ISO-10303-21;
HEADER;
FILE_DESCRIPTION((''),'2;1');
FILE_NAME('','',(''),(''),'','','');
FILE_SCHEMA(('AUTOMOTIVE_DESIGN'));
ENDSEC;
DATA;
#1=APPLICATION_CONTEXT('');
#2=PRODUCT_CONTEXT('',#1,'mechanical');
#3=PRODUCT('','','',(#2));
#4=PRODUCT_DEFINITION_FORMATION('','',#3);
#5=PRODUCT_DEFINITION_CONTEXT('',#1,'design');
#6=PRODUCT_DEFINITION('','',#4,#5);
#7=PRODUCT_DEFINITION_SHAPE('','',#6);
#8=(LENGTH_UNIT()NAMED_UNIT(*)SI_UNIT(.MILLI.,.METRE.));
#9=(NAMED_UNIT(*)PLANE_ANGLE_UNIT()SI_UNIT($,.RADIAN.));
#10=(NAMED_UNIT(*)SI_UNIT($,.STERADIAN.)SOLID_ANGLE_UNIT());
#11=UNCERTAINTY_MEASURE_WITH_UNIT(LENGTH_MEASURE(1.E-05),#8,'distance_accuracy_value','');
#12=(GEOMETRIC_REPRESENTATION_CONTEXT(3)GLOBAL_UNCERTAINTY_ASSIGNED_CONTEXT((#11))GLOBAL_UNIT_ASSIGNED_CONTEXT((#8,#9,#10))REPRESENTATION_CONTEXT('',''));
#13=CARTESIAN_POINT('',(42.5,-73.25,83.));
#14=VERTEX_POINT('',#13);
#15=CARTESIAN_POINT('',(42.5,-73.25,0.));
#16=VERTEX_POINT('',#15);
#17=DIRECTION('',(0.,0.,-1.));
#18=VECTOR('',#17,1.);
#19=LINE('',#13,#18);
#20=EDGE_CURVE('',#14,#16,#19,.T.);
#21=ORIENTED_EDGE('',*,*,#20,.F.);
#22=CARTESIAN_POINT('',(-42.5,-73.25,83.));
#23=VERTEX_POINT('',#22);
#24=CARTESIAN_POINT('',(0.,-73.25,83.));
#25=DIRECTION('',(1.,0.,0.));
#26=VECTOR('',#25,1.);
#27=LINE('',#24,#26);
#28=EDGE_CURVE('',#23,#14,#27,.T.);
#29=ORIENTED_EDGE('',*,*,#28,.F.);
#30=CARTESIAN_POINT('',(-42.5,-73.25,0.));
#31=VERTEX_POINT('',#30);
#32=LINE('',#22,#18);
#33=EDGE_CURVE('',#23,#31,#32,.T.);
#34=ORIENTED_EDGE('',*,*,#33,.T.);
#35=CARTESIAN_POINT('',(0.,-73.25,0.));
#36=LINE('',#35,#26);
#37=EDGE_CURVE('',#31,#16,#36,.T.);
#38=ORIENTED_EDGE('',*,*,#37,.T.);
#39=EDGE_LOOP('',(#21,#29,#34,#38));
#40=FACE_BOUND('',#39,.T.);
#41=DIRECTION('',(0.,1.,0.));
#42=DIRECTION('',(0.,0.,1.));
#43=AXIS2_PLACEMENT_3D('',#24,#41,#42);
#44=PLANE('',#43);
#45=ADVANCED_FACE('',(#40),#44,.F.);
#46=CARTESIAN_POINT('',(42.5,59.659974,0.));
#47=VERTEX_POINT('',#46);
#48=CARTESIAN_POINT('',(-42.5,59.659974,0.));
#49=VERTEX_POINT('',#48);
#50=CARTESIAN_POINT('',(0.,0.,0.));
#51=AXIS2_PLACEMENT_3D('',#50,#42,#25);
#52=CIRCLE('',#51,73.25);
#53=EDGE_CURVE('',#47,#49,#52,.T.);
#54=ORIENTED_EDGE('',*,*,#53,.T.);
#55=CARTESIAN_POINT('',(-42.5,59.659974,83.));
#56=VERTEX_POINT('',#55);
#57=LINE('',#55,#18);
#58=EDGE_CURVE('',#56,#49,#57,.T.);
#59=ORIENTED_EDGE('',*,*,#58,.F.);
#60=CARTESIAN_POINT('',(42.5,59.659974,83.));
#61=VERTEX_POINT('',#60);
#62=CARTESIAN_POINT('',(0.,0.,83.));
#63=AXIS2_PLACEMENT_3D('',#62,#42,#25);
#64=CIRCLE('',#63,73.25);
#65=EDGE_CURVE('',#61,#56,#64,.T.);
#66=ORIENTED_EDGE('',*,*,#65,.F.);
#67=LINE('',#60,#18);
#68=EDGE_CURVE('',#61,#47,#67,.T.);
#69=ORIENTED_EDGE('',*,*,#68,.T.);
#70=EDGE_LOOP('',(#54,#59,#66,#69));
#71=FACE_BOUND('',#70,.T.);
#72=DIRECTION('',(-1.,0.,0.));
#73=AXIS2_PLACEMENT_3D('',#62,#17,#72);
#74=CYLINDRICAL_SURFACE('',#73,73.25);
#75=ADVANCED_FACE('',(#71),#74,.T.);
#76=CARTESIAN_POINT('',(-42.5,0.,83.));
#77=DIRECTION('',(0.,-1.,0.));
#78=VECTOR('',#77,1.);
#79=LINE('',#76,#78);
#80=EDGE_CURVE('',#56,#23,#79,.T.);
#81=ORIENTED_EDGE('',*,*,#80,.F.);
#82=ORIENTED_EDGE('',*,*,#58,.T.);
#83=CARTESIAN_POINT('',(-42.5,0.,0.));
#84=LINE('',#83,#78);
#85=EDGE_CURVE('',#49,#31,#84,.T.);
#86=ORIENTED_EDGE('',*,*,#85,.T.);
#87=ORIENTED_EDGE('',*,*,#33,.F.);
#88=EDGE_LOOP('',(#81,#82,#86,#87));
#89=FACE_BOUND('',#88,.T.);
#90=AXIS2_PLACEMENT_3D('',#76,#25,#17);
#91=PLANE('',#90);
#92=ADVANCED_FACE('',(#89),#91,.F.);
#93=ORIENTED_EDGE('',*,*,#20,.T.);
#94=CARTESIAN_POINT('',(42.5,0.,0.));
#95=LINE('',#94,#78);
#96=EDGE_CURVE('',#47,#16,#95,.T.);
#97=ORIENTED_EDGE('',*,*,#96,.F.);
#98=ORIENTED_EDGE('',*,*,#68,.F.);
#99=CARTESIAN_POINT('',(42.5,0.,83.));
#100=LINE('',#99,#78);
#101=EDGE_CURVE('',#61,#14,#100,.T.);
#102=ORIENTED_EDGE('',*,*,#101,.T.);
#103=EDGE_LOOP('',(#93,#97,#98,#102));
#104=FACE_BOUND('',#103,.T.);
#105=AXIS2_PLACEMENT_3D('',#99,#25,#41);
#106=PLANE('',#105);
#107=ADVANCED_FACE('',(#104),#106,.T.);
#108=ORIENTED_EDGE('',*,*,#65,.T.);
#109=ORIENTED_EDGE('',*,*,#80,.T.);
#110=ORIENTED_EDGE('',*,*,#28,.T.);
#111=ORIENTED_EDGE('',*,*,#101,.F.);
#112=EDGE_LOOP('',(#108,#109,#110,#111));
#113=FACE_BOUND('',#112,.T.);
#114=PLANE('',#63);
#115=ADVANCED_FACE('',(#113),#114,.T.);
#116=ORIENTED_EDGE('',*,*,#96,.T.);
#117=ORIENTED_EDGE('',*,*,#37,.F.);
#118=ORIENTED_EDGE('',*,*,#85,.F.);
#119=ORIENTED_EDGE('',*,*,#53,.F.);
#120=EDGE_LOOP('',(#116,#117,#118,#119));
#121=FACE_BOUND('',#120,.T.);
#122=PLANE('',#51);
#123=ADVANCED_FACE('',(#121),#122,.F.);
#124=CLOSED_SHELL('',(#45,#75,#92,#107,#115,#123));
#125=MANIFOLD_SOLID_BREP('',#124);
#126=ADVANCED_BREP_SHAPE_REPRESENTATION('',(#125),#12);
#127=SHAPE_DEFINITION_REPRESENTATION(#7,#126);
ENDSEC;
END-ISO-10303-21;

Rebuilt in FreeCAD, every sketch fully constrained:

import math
import FreeCAD as App
import Part
import Sketcher
from FreeCAD import Vector
Q = App.Units.Quantity

doc = App.newDocument("Part")
body = doc.addObject("PartDesign::Body", "Body")

# Sketch on XY plane
sketch1 = body.newObject("Sketcher::SketchObject", "Sketch")
sketch1.AttachmentSupport = (doc.getObject("XY_Plane"), [""])
sketch1.MapMode = "FlatFace"
sketch1.addGeometry([
    Part.ArcOfCircle(Part.Circle(Vector(0, 0, 0), Vector(0, 0, 1), 73), math.radians(55), math.radians(90)),  # 0
    Part.ArcOfCircle(Part.Circle(Vector(0, 0, 0), Vector(0, 0, 1), 73), math.radians(90), math.radians(125)),  # 1
    Part.LineSegment(Vector(-42, 60, 0), Vector(-42, -73, 0)),  # 2
    Part.LineSegment(Vector(-42, -73, 0), Vector(42, -73, 0)),  # 3
    Part.LineSegment(Vector(42, -73, 0), Vector(42, 60, 0)),  # 4
], False)
sketch1.addConstraint([
    Sketcher.Constraint("Tangent", 0, 2, 1, 1),
    Sketcher.Constraint("Coincident", 1, 2, 2, 1),
    Sketcher.Constraint("Coincident", 2, 2, 3, 1),
    Sketcher.Constraint("Coincident", 3, 2, 4, 1),
    Sketcher.Constraint("Coincident", 4, 2, 0, 1),
    Sketcher.Constraint("Vertical", 2),
    Sketcher.Constraint("Horizontal", 3),
    Sketcher.Constraint("Vertical", 4),
    Sketcher.Constraint("Coincident", 0, 3, -1, 1),
    Sketcher.Constraint("Equal", 0, 1),
    Sketcher.Constraint("PointOnObject", 0, 2, -2),
    Sketcher.Constraint("Horizontal", 1, 2, 4, 2),
    Sketcher.Constraint("DistanceX", 3, 1, 3, 2, Q("85 mm")),
    Sketcher.Constraint("Radius", 0, Q("73.25 mm")),
    Sketcher.Constraint("DistanceY", 2, 2, 0, 2, Q("146.5 mm")),
])
pad1 = body.newObject("PartDesign::Pad", "Pad")
pad1.Profile = sketch1
pad1.Length = 83

doc.recompute()
